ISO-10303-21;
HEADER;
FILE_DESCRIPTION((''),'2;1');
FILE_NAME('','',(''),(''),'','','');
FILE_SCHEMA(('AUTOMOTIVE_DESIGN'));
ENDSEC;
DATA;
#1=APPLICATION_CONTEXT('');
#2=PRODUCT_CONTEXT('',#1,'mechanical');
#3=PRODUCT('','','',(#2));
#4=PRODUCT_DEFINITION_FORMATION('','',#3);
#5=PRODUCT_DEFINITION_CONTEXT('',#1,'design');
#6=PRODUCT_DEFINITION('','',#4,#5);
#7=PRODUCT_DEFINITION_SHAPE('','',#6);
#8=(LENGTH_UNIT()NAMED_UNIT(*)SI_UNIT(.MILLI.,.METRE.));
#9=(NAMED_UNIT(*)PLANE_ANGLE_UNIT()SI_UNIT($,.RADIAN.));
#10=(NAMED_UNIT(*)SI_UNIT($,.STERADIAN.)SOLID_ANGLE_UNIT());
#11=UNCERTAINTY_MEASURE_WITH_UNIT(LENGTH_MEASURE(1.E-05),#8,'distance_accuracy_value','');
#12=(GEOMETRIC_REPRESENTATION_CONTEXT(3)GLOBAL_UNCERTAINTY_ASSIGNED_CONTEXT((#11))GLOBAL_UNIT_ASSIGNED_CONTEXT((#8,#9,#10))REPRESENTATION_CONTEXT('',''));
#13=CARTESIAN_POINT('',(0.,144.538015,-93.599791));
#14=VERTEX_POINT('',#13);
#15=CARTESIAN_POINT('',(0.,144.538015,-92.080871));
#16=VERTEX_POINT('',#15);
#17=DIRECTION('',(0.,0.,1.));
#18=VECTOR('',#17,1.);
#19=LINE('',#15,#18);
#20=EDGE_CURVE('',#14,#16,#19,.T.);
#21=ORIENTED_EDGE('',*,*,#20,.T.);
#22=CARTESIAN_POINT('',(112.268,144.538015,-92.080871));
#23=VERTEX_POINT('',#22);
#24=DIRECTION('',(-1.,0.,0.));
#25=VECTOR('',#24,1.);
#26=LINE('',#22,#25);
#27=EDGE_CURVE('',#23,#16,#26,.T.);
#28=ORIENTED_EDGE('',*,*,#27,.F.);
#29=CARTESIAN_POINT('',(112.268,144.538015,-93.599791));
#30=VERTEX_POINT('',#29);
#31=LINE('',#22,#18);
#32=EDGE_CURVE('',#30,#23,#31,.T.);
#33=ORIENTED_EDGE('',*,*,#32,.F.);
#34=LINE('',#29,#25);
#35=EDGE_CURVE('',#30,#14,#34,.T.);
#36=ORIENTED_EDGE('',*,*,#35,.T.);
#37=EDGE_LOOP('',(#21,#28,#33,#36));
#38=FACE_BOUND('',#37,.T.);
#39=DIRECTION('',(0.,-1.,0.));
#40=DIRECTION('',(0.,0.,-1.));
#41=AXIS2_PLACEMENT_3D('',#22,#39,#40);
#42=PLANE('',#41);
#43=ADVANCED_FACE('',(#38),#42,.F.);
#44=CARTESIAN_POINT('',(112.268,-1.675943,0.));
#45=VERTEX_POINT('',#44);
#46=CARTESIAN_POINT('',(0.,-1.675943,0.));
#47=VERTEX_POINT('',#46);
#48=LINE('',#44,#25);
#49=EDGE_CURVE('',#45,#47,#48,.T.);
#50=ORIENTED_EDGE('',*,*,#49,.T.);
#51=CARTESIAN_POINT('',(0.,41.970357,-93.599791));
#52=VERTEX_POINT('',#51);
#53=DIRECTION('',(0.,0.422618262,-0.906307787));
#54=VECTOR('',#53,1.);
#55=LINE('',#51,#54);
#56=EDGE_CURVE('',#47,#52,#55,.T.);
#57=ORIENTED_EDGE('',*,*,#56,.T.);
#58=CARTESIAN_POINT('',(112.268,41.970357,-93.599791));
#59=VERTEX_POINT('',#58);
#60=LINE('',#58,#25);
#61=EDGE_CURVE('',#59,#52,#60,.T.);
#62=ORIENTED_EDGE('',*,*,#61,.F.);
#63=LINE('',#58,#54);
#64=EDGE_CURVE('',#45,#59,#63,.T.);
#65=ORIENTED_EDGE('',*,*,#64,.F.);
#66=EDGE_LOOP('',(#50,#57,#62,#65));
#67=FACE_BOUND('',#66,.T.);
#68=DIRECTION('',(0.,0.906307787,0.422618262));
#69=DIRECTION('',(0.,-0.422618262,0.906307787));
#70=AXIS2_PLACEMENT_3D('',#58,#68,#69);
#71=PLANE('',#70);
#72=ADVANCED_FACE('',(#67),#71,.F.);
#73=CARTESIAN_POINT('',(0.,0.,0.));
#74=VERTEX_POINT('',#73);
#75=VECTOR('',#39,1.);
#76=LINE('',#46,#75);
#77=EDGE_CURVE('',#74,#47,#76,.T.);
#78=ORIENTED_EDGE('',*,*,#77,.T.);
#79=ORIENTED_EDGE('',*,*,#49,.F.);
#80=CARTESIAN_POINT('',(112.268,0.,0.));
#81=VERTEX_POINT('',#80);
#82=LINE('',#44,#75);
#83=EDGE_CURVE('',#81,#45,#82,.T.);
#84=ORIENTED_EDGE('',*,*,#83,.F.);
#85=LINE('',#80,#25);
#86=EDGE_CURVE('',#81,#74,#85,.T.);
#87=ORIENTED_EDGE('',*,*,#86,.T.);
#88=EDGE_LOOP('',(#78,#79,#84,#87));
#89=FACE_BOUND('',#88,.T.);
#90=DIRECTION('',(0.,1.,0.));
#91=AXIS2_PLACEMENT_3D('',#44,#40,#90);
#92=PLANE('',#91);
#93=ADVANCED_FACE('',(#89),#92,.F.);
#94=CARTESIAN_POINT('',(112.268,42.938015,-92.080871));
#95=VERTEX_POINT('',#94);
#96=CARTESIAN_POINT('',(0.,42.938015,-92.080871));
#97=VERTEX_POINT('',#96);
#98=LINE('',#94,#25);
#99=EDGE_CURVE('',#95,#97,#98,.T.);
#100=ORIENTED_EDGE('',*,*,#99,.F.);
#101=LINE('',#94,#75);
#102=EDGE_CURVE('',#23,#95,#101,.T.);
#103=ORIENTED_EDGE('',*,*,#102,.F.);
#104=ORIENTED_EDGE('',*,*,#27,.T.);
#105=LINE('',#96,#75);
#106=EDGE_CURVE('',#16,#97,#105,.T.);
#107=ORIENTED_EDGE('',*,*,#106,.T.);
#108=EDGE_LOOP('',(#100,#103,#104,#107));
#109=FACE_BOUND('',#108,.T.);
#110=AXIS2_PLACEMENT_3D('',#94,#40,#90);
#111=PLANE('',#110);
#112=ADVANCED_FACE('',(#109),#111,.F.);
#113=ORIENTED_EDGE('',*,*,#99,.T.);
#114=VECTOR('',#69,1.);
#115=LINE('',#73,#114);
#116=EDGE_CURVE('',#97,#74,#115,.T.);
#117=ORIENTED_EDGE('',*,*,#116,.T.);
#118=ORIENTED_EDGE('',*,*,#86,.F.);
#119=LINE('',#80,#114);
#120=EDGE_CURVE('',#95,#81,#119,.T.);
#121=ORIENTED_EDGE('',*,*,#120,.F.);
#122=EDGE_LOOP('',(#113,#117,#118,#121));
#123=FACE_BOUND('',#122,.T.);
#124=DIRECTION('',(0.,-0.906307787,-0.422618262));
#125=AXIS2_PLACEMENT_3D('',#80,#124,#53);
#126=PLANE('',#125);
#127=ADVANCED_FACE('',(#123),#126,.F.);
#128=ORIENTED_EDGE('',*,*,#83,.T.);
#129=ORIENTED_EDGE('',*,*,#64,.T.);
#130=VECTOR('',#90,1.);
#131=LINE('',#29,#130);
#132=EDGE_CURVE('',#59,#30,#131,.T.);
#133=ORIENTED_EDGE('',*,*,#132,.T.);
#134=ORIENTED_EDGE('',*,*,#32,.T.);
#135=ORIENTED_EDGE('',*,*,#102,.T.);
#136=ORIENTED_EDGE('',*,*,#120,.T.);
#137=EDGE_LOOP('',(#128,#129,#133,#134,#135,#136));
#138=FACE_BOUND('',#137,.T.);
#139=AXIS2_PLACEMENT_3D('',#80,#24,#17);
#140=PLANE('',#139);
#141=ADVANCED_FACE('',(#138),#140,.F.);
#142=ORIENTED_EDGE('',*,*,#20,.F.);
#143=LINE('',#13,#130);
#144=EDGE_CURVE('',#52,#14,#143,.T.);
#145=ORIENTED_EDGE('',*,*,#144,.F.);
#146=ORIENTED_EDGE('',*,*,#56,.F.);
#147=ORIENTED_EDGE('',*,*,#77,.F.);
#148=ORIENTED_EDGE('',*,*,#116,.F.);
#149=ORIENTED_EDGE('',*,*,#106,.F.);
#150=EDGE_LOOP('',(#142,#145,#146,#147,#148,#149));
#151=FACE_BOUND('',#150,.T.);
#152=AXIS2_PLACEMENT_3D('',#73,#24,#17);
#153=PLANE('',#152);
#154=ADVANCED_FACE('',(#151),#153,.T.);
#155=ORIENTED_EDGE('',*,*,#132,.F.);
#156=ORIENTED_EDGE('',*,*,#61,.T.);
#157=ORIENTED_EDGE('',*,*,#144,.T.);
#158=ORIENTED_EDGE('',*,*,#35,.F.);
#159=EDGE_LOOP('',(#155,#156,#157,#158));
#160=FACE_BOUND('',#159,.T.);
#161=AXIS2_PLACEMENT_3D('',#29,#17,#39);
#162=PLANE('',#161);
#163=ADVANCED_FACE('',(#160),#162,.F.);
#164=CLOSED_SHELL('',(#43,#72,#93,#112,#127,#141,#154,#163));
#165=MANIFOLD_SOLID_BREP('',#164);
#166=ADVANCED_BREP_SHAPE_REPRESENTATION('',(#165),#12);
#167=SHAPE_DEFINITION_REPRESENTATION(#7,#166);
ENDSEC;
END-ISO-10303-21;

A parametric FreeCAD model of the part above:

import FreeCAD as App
import Part
import Sketcher

V = App.Vector
Q = App.Units.Quantity

doc = App.newDocument("Part")
body = doc.addObject("PartDesign::Body", "Body")

# Sketch on YZ plane
sketch1 = body.newObject("Sketcher::SketchObject", "Sketch")
sketch1.AttachmentSupport = (doc.getObject("YZ_Plane"), [""])
sketch1.MapMode = "FlatFace"
sketch1.addGeometry([
    Part.LineSegment(V(42.938015, -92.080871, 0), V(0, 0, 0)),  # 0
    Part.LineSegment(V(0, 0, 0), V(-1.675943, 0, 0)),  # 1
    Part.LineSegment(V(-1.675943, 0, 0), V(41.970357, -93.599791, 0)),  # 2
    Part.LineSegment(V(41.970357, -93.599791, 0), V(144.538015, -93.599791, 0)),  # 3
    Part.LineSegment(V(144.538015, -93.599791, 0), V(144.538015, -92.080871, 0)),  # 4
    Part.LineSegment(V(144.538015, -92.080871, 0), V(42.938015, -92.080871, 0)),  # 5
], False)
sketch1.addConstraint([
    Sketcher.Constraint("Coincident", 0, 2, 1, 1),
    Sketcher.Constraint("Coincident", 1, 2, 2, 1),
    Sketcher.Constraint("Coincident", 2, 2, 3, 1),
    Sketcher.Constraint("Coincident", 3, 2, 4, 1),
    Sketcher.Constraint("Coincident", 4, 2, 5, 1),
    Sketcher.Constraint("Coincident", 5, 2, 0, 1),
    Sketcher.Constraint("Horizontal", 1),
    Sketcher.Constraint("Horizontal", 3),
    Sketcher.Constraint("Vertical", 4),
    Sketcher.Constraint("Horizontal", 5),
    Sketcher.Constraint("Coincident", 0, 2, -1, 1),
    Sketcher.Constraint("Parallel", 0, 2),
    Sketcher.Constraint("DistanceX", 5, 2, 5, 1, Q("4 in")),
    Sketcher.Constraint("Distance", 0, Q("4 in")),
    Sketcher.Constraint("Angle", 0, Q("115 deg")),
    Sketcher.Constraint("DistanceY", 4, 1, 4, 2, Q("0.0598 in")),
    Sketcher.Constraint("DistanceX", 3, 1, 3, 2, 102.567659),
])
pad1 = body.newObject("PartDesign::Pad", "Pad")
pad1.Profile = sketch1
pad1.Length = Q("4.42 in")

doc.recompute()
